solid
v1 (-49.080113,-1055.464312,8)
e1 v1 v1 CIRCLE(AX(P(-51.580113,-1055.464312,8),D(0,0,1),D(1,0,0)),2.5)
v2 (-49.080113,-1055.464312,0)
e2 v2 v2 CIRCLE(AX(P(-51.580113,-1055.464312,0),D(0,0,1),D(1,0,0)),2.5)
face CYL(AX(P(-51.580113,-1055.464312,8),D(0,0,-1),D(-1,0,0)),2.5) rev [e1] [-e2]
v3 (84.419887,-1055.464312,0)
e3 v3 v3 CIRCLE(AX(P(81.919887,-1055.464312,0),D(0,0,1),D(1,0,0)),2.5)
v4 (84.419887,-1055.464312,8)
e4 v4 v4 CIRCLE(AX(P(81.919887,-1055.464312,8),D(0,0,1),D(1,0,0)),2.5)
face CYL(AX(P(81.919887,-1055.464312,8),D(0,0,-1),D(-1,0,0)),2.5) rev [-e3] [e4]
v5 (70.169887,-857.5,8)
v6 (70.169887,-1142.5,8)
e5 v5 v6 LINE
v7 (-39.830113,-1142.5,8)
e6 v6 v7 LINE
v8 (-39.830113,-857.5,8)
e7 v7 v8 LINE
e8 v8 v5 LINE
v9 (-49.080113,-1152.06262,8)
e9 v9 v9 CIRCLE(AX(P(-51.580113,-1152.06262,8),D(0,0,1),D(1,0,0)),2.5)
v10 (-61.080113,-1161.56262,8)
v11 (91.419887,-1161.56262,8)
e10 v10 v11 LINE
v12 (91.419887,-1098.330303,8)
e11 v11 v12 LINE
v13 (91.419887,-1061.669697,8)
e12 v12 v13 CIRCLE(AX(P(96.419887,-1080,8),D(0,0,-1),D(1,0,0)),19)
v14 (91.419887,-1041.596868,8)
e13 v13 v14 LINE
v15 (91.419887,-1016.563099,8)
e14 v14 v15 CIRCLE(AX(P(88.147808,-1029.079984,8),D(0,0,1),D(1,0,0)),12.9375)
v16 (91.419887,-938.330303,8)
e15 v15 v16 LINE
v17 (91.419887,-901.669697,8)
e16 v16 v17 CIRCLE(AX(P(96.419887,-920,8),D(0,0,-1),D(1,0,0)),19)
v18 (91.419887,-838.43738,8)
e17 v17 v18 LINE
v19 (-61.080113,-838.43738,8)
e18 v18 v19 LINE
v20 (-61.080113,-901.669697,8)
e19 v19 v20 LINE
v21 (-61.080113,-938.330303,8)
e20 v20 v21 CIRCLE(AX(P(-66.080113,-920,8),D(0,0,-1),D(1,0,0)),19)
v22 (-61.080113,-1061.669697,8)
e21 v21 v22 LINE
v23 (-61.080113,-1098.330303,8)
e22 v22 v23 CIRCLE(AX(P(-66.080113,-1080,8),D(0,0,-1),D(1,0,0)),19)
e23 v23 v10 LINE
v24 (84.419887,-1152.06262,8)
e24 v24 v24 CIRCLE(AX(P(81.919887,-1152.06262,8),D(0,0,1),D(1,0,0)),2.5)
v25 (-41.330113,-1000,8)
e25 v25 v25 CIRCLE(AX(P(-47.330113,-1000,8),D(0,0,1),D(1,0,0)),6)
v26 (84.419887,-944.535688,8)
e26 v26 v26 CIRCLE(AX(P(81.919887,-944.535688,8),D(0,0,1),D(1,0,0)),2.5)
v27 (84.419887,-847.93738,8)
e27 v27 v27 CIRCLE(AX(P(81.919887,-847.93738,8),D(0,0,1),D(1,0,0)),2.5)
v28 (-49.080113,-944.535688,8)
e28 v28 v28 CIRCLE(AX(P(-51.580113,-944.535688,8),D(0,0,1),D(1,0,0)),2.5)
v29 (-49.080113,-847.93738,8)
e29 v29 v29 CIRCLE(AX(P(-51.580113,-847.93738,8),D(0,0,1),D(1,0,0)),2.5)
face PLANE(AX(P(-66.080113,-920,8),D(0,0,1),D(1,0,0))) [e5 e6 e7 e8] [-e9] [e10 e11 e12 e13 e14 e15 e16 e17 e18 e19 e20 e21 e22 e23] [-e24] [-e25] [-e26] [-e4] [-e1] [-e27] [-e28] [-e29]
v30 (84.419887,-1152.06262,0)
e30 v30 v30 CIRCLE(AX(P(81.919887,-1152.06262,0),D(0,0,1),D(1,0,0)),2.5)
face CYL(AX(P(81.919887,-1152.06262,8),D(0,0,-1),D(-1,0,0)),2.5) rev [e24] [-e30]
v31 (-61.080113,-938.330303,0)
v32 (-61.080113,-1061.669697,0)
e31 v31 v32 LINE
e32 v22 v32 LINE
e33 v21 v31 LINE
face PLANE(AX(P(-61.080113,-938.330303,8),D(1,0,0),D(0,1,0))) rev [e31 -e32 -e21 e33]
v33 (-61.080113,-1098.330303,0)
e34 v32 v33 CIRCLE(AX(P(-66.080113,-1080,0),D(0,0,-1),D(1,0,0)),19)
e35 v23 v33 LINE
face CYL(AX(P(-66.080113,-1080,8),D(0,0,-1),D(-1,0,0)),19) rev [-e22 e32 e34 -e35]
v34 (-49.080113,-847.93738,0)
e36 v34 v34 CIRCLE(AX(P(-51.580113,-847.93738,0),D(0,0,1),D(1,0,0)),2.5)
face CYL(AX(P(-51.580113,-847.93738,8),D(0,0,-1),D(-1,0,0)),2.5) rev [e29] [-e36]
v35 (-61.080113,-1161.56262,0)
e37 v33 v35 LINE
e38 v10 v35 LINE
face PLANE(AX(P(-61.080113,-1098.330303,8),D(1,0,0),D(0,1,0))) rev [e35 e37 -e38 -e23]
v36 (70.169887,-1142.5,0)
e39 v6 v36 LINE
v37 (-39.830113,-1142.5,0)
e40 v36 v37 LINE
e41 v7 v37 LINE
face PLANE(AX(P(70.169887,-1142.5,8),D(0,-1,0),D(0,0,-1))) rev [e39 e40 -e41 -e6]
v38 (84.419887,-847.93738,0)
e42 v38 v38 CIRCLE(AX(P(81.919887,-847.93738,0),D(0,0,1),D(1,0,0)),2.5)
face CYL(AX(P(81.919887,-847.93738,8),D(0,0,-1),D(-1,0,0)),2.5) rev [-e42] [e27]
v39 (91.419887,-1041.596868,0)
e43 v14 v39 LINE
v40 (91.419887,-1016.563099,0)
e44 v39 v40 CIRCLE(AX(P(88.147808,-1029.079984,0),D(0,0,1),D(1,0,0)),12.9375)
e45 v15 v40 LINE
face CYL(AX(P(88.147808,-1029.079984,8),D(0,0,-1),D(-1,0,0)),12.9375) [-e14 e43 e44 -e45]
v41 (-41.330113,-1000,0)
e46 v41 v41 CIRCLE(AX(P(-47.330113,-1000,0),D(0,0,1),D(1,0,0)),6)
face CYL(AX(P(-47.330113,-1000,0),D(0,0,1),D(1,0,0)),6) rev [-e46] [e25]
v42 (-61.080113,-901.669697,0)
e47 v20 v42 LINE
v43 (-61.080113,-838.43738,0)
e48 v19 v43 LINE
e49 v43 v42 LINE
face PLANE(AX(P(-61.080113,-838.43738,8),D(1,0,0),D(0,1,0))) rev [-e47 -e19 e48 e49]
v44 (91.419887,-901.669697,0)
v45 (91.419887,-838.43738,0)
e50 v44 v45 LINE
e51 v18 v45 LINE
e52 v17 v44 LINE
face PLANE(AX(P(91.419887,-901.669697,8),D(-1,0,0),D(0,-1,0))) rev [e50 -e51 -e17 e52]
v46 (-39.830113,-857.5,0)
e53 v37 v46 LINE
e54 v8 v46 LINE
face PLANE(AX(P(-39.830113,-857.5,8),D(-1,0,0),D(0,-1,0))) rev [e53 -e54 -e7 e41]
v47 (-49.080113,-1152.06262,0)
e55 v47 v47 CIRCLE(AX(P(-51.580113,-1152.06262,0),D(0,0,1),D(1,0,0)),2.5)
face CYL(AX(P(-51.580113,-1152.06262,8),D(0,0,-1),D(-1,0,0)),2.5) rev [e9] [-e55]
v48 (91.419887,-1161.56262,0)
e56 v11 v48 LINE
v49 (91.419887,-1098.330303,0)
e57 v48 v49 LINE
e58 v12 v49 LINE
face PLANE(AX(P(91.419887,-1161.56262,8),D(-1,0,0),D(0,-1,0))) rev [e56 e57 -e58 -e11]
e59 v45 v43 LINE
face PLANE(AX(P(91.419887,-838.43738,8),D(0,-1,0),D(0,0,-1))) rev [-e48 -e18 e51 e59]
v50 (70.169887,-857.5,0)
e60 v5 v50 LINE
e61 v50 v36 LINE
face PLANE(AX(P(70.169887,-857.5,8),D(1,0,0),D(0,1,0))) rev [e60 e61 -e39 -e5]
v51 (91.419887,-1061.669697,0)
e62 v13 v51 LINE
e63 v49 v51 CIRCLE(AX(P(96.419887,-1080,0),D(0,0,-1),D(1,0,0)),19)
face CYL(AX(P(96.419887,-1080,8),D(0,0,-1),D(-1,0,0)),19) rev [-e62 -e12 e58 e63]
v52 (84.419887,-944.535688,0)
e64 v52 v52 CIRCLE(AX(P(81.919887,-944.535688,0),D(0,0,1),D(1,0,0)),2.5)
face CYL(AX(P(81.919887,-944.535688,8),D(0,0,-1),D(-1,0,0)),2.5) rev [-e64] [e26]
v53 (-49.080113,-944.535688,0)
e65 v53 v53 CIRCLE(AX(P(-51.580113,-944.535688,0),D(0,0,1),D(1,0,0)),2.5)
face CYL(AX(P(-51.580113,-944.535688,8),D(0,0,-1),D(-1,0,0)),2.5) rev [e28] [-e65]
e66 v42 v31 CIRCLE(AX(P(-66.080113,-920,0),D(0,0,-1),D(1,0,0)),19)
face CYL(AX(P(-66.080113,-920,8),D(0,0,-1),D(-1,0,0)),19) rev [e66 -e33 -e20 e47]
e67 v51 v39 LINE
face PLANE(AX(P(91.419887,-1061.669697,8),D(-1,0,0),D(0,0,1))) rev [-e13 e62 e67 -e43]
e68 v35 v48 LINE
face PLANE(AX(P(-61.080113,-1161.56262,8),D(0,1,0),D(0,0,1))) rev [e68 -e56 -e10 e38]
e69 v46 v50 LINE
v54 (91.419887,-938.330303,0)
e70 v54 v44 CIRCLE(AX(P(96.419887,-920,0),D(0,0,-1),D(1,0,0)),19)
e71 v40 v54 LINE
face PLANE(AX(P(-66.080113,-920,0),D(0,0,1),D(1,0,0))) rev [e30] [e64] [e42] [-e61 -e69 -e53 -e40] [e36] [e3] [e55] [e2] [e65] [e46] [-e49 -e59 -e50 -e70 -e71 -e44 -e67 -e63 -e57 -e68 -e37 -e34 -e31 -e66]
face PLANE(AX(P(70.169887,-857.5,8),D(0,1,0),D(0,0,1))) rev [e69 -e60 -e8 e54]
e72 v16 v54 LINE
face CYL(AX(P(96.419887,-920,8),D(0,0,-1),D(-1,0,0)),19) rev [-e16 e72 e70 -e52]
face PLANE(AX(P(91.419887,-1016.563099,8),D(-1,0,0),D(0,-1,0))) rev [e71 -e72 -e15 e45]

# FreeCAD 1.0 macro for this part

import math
import FreeCAD as App
import Part
import Sketcher
from FreeCAD import Vector


def add_polygon(sketch, points):
    """Adds a closed chain of lines whose ends are joined by coincident constraints."""
    first, n = sketch.GeometryCount, len(points)
    for a, b in zip(points, points[1:] + points[:1]):
        sketch.addGeometry(Part.LineSegment(App.Vector(*a, 0), App.Vector(*b, 0)), False)
    for i in range(n):
        sketch.addConstraint(Sketcher.Constraint("Coincident", first + i, 2, first + (i + 1) % n, 1))

doc = App.newDocument("Part")
body = doc.addObject("PartDesign::Body", "Body")

# Sketch on XY plane
sketch1 = doc.addObject("Sketcher::SketchObject", "Sketch")
body.addObject(sketch1)
sketch1.AttachmentSupport = (doc.XY_Plane, [""])
sketch1.MapMode = "FlatFace"
sketch1.addGeometry(Part.LineSegment(Vector(-61.080113, -938.330303, 0), Vector(-61.080113, -1061.669697, 0)), False)
sketch1.addGeometry(Part.ArcOfCircle(Part.Circle(Vector(-66.080113, -1080, 0), Vector(0, 0, 1), 19), math.radians(-74.742477), math.radians(74.742477)), False)
sketch1.addGeometry(Part.LineSegment(Vector(-61.080113, -1098.330303, 0), Vector(-61.080113, -1161.56262, 0)), False)
sketch1.addGeometry(Part.LineSegment(Vector(-61.080113, -1161.56262, 0), Vector(91.419887, -1161.56262, 0)), False)
sketch1.addGeometry(Part.LineSegment(Vector(91.419887, -1161.56262, 0), Vector(91.419887, -1098.330303, 0)), False)
sketch1.addGeometry(Part.ArcOfCircle(Part.Circle(Vector(96.419887, -1080, 0), Vector(0, 0, 1), 19), math.radians(105.257523), math.radians(254.742477)), False)
sketch1.addGeometry(Part.LineSegment(Vector(91.419887, -1061.669697, 0), Vector(91.419887, -1041.596868, 0)), False)
sketch1.addGeometry(Part.ArcOfCircle(Part.Circle(Vector(88.147808, -1029.079984, 0), Vector(0, 0, 1), 12.9375), math.radians(-75.349967), math.radians(75.349967)), False)
sketch1.addGeometry(Part.LineSegment(Vector(91.419887, -1016.563099, 0), Vector(91.419887, -938.330303, 0)), False)
sketch1.addGeometry(Part.ArcOfCircle(Part.Circle(Vector(96.419887, -920, 0), Vector(0, 0, 1), 19), math.radians(105.257523), math.radians(254.742477)), False)
sketch1.addGeometry(Part.LineSegment(Vector(91.419887, -901.669697, 0), Vector(91.419887, -838.43738, 0)), False)
sketch1.addGeometry(Part.LineSegment(Vector(91.419887, -838.43738, 0), Vector(-61.080113, -838.43738, 0)), False)
sketch1.addGeometry(Part.LineSegment(Vector(-61.080113, -838.43738, 0), Vector(-61.080113, -901.669697, 0)), False)
sketch1.addGeometry(Part.ArcOfCircle(Part.Circle(Vector(-66.080113, -920, 0), Vector(0, 0, 1), 19), math.radians(-74.742477), math.radians(74.742477)), False)
sketch1.addGeometry(Part.Circle(Vector(-51.580113, -1152.06262, 0), Vector(0, 0, 1), 2.5), False)
sketch1.addGeometry(Part.Circle(Vector(-51.580113, -1055.464312, 0), Vector(0, 0, 1), 2.5), False)
sketch1.addGeometry(Part.Circle(Vector(81.919887, -1152.06262, 0), Vector(0, 0, 1), 2.5), False)
sketch1.addGeometry(Part.Circle(Vector(81.919887, -1055.464312, 0), Vector(0, 0, 1), 2.5), False)
sketch1.addGeometry(Part.Circle(Vector(-51.580113, -944.535688, 0), Vector(0, 0, 1), 2.5), False)
sketch1.addGeometry(Part.Circle(Vector(-51.580113, -847.93738, 0), Vector(0, 0, 1), 2.5), False)
sketch1.addGeometry(Part.Circle(Vector(81.919887, -944.535688, 0), Vector(0, 0, 1), 2.5), False)
sketch1.addGeometry(Part.Circle(Vector(81.919887, -847.93738, 0), Vector(0, 0, 1), 2.5), False)
sketch1.addConstraint(Sketcher.Constraint("Coincident", 0, 2, 1, 2))
sketch1.addConstraint(Sketcher.Constraint("Coincident", 1, 1, 2, 1))
sketch1.addConstraint(Sketcher.Constraint("Coincident", 2, 2, 3, 1))
sketch1.addConstraint(Sketcher.Constraint("Coincident", 3, 2, 4, 1))
sketch1.addConstraint(Sketcher.Constraint("Coincident", 4, 2, 5, 2))
sketch1.addConstraint(Sketcher.Constraint("Coincident", 5, 1, 6, 1))
sketch1.addConstraint(Sketcher.Constraint("Coincident", 6, 2, 7, 1))
sketch1.addConstraint(Sketcher.Constraint("Coincident", 7, 2, 8, 1))
sketch1.addConstraint(Sketcher.Constraint("Coincident", 8, 2, 9, 2))
sketch1.addConstraint(Sketcher.Constraint("Coincident", 9, 1, 10, 1))
sketch1.addConstraint(Sketcher.Constraint("Coincident", 10, 2, 11, 1))
sketch1.addConstraint(Sketcher.Constraint("Coincident", 11, 2, 12, 1))
sketch1.addConstraint(Sketcher.Constraint("Coincident", 12, 2, 13, 2))
sketch1.addConstraint(Sketcher.Constraint("Coincident", 13, 1, 0, 1))
sketch1.addConstraint(Sketcher.Constraint("Vertical", 0))
sketch1.addConstraint(Sketcher.Constraint("Vertical", 2))
sketch1.addConstraint(Sketcher.Constraint("Horizontal", 3))
sketch1.addConstraint(Sketcher.Constraint("Vertical", 4))
sketch1.addConstraint(Sketcher.Constraint("Vertical", 6))
sketch1.addConstraint(Sketcher.Constraint("Vertical", 8))
sketch1.addConstraint(Sketcher.Constraint("Vertical", 10))
sketch1.addConstraint(Sketcher.Constraint("Horizontal", 11))
sketch1.addConstraint(Sketcher.Constraint("Vertical", 12))
sketch1.addConstraint(Sketcher.Constraint("Equal", 1, 5))
sketch1.addConstraint(Sketcher.Constraint("Equal", 5, 9))
sketch1.addConstraint(Sketcher.Constraint("Equal", 9, 13))
sketch1.addConstraint(Sketcher.Constraint("Equal", 14, 15))
sketch1.addConstraint(Sketcher.Constraint("Equal", 15, 16))
sketch1.addConstraint(Sketcher.Constraint("Equal", 16, 17))
sketch1.addConstraint(Sketcher.Constraint("Equal", 17, 18))
sketch1.addConstraint(Sketcher.Constraint("Equal", 18, 19))
sketch1.addConstraint(Sketcher.Constraint("Equal", 19, 20))
sketch1.addConstraint(Sketcher.Constraint("Equal", 20, 21))
sketch1.addConstraint(Sketcher.Constraint("Horizontal", 1, 3, 5, 3))
sketch1.addConstraint(Sketcher.Constraint("Horizontal", 9, 3, 13, 3))
sketch1.addConstraint(Sketcher.Constraint("Horizontal", 14, 3, 16, 3))
sketch1.addConstraint(Sketcher.Constraint("Horizontal", 15, 3, 17, 3))
sketch1.addConstraint(Sketcher.Constraint("Horizontal", 18, 3, 20, 3))
sketch1.addConstraint(Sketcher.Constraint("Horizontal", 19, 3, 21, 3))
sketch1.addConstraint(Sketcher.Constraint("Horizontal", 1, 1, 4, 2))
sketch1.addConstraint(Sketcher.Constraint("Horizontal", 0, 2, 5, 1))
sketch1.addConstraint(Sketcher.Constraint("Horizontal", 9, 1, 12, 2))
sketch1.addConstraint(Sketcher.Constraint("Horizontal", 8, 2, 13, 1))
sketch1.addConstraint(Sketcher.Constraint("Vertical", 5, 3, 9, 3))
sketch1.addConstraint(Sketcher.Constraint("Vertical", 1, 3, 13, 3))
sketch1.addConstraint(Sketcher.Constraint("Vertical", 14, 3, 15, 3))
sketch1.addConstraint(Sketcher.Constraint("Vertical", 16, 3, 17, 3))
sketch1.addConstraint(Sketcher.Constraint("Vertical", 15, 3, 18, 3))
sketch1.addConstraint(Sketcher.Constraint("Vertical", 18, 3, 19, 3))
sketch1.addConstraint(Sketcher.Constraint("Vertical", 17, 3, 20, 3))
sketch1.addConstraint(Sketcher.Constraint("Vertical", 20, 3, 21, 3))
sketch1.addConstraint(Sketcher.Constraint("Vertical", 0, 2, 1, 1))
sketch1.addConstraint(Sketcher.Constraint("Vertical", 8, 2, 9, 1))
sketch1.addConstraint(Sketcher.Constraint("Equal", 4, 10))
sketch1.addConstraint(Sketcher.Constraint("Diameter", 14, 5.0))
sketch1.addConstraint(Sketcher.Constraint("Radius", 1, 19.0))
sketch1.addConstraint(Sketcher.Constraint("DistanceX", 3, 1, 3, 2, 152.5))
sketch1.addConstraint(Sketcher.Constraint("DistanceY", 1, 3, -1, 1, 1080.0))
sketch1.addConstraint(Sketcher.Constraint("DistanceY", 9, 3, -1, 1, 920.0))
sketch1.addConstraint(Sketcher.Constraint("DistanceX", 14, 3, 5, 3, 148.0))
sketch1.addConstraint(Sketcher.Constraint("DistanceX", 1, 3, 16, 3, 148.0))
sketch1.addConstraint(Sketcher.Constraint("DistanceX", 1, 3, 0, 2, 5.0))
sketch1.addConstraint(Sketcher.Constraint("Radius", 7, 12.9375))
sketch1.addConstraint(Sketcher.Constraint("DistanceY", 2, 2, 14, 3, 9.5))
sketch1.addConstraint(Sketcher.Constraint("DistanceY", 21, 3, 10, 2, 9.5))
sketch1.addConstraint(Sketcher.Constraint("DistanceY", 6, 1, 6, 2, 20.072829))
sketch1.addConstraint(Sketcher.Constraint("DistanceY", 7, 2, -1, 1, 1016.563099))
sketch1.addConstraint(Sketcher.Constraint("DistanceY", 2, 2, 2, 1, 63.232317))
sketch1.addConstraint(Sketcher.Constraint("DistanceX", -1, 1, 7, 3, 88.147808))
sketch1.addConstraint(Sketcher.Constraint("DistanceY", 15, 3, -1, 1, 1055.464312))
sketch1.addConstraint(Sketcher.Constraint("DistanceY", 18, 3, -1, 1, 944.535688))
pad1 = doc.addObject("PartDesign::Pad", "Pad")
body.addObject(pad1)
pad1.Profile = sketch1
pad1.Length = 8

# Sketch on XY plane
sketch2 = doc.addObject("Sketcher::SketchObject", "Sketch001")
body.addObject(sketch2)
sketch2.AttachmentSupport = (doc.XY_Plane, [""])
sketch2.MapMode = "FlatFace"
add_polygon(sketch2, [(70.169887, -857.5), (70.169887, -1142.5), (-39.830113, -1142.5), (-39.830113, -857.5)])  # lines 0-3
sketch2.addConstraint(Sketcher.Constraint("Vertical", 0))
sketch2.addConstraint(Sketcher.Constraint("Horizontal", 1))
sketch2.addConstraint(Sketcher.Constraint("Vertical", 2))
sketch2.addConstraint(Sketcher.Constraint("Horizontal", 3))
sketch2.addConstraint(Sketcher.Constraint("DistanceX", 1, 2, 1, 1, 110.0))
sketch2.addConstraint(Sketcher.Constraint("DistanceY", 0, 2, 0, 1, 285.0))
sketch2.addConstraint(Sketcher.Constraint("DistanceY", 0, 2, -1, 1, 1142.5))
sketch2.addConstraint(Sketcher.Constraint("DistanceX", -1, 1, 0, 2, 70.169887))
pocket1 = doc.addObject("PartDesign::Pocket", "Pocket")
body.addObject(pocket1)
pocket1.Profile = sketch2
pocket1.Type = "ThroughAll"
pocket1.Reversed = True

# Sketch on XY plane
sketch3 = doc.addObject("Sketcher::SketchObject", "Sketch002")
body.addObject(sketch3)
sketch3.AttachmentSupport = (doc.XY_Plane, [""])
sketch3.MapMode = "FlatFace"
sketch3.AttachmentOffset = App.Placement(Vector(0, 0, 8), App.Rotation())
sketch3.addGeometry(Part.Circle(Vector(-47.330113, -1000, 0), Vector(0, 0, 1), 6), False)
sketch3.addConstraint(Sketcher.Constraint("Diameter", 0, 12.0))
sketch3.addConstraint(Sketcher.Constraint("DistanceY", 0, 3, -1, 1, 1000.0))
sketch3.addConstraint(Sketcher.Constraint("DistanceX", 0, 3, -1, 1, 47.330113))
pocket2 = doc.addObject("PartDesign::Pocket", "Pocket001")
body.addObject(pocket2)
pocket2.Profile = sketch3
pocket2.Type = "ThroughAll"

doc.recompute()
